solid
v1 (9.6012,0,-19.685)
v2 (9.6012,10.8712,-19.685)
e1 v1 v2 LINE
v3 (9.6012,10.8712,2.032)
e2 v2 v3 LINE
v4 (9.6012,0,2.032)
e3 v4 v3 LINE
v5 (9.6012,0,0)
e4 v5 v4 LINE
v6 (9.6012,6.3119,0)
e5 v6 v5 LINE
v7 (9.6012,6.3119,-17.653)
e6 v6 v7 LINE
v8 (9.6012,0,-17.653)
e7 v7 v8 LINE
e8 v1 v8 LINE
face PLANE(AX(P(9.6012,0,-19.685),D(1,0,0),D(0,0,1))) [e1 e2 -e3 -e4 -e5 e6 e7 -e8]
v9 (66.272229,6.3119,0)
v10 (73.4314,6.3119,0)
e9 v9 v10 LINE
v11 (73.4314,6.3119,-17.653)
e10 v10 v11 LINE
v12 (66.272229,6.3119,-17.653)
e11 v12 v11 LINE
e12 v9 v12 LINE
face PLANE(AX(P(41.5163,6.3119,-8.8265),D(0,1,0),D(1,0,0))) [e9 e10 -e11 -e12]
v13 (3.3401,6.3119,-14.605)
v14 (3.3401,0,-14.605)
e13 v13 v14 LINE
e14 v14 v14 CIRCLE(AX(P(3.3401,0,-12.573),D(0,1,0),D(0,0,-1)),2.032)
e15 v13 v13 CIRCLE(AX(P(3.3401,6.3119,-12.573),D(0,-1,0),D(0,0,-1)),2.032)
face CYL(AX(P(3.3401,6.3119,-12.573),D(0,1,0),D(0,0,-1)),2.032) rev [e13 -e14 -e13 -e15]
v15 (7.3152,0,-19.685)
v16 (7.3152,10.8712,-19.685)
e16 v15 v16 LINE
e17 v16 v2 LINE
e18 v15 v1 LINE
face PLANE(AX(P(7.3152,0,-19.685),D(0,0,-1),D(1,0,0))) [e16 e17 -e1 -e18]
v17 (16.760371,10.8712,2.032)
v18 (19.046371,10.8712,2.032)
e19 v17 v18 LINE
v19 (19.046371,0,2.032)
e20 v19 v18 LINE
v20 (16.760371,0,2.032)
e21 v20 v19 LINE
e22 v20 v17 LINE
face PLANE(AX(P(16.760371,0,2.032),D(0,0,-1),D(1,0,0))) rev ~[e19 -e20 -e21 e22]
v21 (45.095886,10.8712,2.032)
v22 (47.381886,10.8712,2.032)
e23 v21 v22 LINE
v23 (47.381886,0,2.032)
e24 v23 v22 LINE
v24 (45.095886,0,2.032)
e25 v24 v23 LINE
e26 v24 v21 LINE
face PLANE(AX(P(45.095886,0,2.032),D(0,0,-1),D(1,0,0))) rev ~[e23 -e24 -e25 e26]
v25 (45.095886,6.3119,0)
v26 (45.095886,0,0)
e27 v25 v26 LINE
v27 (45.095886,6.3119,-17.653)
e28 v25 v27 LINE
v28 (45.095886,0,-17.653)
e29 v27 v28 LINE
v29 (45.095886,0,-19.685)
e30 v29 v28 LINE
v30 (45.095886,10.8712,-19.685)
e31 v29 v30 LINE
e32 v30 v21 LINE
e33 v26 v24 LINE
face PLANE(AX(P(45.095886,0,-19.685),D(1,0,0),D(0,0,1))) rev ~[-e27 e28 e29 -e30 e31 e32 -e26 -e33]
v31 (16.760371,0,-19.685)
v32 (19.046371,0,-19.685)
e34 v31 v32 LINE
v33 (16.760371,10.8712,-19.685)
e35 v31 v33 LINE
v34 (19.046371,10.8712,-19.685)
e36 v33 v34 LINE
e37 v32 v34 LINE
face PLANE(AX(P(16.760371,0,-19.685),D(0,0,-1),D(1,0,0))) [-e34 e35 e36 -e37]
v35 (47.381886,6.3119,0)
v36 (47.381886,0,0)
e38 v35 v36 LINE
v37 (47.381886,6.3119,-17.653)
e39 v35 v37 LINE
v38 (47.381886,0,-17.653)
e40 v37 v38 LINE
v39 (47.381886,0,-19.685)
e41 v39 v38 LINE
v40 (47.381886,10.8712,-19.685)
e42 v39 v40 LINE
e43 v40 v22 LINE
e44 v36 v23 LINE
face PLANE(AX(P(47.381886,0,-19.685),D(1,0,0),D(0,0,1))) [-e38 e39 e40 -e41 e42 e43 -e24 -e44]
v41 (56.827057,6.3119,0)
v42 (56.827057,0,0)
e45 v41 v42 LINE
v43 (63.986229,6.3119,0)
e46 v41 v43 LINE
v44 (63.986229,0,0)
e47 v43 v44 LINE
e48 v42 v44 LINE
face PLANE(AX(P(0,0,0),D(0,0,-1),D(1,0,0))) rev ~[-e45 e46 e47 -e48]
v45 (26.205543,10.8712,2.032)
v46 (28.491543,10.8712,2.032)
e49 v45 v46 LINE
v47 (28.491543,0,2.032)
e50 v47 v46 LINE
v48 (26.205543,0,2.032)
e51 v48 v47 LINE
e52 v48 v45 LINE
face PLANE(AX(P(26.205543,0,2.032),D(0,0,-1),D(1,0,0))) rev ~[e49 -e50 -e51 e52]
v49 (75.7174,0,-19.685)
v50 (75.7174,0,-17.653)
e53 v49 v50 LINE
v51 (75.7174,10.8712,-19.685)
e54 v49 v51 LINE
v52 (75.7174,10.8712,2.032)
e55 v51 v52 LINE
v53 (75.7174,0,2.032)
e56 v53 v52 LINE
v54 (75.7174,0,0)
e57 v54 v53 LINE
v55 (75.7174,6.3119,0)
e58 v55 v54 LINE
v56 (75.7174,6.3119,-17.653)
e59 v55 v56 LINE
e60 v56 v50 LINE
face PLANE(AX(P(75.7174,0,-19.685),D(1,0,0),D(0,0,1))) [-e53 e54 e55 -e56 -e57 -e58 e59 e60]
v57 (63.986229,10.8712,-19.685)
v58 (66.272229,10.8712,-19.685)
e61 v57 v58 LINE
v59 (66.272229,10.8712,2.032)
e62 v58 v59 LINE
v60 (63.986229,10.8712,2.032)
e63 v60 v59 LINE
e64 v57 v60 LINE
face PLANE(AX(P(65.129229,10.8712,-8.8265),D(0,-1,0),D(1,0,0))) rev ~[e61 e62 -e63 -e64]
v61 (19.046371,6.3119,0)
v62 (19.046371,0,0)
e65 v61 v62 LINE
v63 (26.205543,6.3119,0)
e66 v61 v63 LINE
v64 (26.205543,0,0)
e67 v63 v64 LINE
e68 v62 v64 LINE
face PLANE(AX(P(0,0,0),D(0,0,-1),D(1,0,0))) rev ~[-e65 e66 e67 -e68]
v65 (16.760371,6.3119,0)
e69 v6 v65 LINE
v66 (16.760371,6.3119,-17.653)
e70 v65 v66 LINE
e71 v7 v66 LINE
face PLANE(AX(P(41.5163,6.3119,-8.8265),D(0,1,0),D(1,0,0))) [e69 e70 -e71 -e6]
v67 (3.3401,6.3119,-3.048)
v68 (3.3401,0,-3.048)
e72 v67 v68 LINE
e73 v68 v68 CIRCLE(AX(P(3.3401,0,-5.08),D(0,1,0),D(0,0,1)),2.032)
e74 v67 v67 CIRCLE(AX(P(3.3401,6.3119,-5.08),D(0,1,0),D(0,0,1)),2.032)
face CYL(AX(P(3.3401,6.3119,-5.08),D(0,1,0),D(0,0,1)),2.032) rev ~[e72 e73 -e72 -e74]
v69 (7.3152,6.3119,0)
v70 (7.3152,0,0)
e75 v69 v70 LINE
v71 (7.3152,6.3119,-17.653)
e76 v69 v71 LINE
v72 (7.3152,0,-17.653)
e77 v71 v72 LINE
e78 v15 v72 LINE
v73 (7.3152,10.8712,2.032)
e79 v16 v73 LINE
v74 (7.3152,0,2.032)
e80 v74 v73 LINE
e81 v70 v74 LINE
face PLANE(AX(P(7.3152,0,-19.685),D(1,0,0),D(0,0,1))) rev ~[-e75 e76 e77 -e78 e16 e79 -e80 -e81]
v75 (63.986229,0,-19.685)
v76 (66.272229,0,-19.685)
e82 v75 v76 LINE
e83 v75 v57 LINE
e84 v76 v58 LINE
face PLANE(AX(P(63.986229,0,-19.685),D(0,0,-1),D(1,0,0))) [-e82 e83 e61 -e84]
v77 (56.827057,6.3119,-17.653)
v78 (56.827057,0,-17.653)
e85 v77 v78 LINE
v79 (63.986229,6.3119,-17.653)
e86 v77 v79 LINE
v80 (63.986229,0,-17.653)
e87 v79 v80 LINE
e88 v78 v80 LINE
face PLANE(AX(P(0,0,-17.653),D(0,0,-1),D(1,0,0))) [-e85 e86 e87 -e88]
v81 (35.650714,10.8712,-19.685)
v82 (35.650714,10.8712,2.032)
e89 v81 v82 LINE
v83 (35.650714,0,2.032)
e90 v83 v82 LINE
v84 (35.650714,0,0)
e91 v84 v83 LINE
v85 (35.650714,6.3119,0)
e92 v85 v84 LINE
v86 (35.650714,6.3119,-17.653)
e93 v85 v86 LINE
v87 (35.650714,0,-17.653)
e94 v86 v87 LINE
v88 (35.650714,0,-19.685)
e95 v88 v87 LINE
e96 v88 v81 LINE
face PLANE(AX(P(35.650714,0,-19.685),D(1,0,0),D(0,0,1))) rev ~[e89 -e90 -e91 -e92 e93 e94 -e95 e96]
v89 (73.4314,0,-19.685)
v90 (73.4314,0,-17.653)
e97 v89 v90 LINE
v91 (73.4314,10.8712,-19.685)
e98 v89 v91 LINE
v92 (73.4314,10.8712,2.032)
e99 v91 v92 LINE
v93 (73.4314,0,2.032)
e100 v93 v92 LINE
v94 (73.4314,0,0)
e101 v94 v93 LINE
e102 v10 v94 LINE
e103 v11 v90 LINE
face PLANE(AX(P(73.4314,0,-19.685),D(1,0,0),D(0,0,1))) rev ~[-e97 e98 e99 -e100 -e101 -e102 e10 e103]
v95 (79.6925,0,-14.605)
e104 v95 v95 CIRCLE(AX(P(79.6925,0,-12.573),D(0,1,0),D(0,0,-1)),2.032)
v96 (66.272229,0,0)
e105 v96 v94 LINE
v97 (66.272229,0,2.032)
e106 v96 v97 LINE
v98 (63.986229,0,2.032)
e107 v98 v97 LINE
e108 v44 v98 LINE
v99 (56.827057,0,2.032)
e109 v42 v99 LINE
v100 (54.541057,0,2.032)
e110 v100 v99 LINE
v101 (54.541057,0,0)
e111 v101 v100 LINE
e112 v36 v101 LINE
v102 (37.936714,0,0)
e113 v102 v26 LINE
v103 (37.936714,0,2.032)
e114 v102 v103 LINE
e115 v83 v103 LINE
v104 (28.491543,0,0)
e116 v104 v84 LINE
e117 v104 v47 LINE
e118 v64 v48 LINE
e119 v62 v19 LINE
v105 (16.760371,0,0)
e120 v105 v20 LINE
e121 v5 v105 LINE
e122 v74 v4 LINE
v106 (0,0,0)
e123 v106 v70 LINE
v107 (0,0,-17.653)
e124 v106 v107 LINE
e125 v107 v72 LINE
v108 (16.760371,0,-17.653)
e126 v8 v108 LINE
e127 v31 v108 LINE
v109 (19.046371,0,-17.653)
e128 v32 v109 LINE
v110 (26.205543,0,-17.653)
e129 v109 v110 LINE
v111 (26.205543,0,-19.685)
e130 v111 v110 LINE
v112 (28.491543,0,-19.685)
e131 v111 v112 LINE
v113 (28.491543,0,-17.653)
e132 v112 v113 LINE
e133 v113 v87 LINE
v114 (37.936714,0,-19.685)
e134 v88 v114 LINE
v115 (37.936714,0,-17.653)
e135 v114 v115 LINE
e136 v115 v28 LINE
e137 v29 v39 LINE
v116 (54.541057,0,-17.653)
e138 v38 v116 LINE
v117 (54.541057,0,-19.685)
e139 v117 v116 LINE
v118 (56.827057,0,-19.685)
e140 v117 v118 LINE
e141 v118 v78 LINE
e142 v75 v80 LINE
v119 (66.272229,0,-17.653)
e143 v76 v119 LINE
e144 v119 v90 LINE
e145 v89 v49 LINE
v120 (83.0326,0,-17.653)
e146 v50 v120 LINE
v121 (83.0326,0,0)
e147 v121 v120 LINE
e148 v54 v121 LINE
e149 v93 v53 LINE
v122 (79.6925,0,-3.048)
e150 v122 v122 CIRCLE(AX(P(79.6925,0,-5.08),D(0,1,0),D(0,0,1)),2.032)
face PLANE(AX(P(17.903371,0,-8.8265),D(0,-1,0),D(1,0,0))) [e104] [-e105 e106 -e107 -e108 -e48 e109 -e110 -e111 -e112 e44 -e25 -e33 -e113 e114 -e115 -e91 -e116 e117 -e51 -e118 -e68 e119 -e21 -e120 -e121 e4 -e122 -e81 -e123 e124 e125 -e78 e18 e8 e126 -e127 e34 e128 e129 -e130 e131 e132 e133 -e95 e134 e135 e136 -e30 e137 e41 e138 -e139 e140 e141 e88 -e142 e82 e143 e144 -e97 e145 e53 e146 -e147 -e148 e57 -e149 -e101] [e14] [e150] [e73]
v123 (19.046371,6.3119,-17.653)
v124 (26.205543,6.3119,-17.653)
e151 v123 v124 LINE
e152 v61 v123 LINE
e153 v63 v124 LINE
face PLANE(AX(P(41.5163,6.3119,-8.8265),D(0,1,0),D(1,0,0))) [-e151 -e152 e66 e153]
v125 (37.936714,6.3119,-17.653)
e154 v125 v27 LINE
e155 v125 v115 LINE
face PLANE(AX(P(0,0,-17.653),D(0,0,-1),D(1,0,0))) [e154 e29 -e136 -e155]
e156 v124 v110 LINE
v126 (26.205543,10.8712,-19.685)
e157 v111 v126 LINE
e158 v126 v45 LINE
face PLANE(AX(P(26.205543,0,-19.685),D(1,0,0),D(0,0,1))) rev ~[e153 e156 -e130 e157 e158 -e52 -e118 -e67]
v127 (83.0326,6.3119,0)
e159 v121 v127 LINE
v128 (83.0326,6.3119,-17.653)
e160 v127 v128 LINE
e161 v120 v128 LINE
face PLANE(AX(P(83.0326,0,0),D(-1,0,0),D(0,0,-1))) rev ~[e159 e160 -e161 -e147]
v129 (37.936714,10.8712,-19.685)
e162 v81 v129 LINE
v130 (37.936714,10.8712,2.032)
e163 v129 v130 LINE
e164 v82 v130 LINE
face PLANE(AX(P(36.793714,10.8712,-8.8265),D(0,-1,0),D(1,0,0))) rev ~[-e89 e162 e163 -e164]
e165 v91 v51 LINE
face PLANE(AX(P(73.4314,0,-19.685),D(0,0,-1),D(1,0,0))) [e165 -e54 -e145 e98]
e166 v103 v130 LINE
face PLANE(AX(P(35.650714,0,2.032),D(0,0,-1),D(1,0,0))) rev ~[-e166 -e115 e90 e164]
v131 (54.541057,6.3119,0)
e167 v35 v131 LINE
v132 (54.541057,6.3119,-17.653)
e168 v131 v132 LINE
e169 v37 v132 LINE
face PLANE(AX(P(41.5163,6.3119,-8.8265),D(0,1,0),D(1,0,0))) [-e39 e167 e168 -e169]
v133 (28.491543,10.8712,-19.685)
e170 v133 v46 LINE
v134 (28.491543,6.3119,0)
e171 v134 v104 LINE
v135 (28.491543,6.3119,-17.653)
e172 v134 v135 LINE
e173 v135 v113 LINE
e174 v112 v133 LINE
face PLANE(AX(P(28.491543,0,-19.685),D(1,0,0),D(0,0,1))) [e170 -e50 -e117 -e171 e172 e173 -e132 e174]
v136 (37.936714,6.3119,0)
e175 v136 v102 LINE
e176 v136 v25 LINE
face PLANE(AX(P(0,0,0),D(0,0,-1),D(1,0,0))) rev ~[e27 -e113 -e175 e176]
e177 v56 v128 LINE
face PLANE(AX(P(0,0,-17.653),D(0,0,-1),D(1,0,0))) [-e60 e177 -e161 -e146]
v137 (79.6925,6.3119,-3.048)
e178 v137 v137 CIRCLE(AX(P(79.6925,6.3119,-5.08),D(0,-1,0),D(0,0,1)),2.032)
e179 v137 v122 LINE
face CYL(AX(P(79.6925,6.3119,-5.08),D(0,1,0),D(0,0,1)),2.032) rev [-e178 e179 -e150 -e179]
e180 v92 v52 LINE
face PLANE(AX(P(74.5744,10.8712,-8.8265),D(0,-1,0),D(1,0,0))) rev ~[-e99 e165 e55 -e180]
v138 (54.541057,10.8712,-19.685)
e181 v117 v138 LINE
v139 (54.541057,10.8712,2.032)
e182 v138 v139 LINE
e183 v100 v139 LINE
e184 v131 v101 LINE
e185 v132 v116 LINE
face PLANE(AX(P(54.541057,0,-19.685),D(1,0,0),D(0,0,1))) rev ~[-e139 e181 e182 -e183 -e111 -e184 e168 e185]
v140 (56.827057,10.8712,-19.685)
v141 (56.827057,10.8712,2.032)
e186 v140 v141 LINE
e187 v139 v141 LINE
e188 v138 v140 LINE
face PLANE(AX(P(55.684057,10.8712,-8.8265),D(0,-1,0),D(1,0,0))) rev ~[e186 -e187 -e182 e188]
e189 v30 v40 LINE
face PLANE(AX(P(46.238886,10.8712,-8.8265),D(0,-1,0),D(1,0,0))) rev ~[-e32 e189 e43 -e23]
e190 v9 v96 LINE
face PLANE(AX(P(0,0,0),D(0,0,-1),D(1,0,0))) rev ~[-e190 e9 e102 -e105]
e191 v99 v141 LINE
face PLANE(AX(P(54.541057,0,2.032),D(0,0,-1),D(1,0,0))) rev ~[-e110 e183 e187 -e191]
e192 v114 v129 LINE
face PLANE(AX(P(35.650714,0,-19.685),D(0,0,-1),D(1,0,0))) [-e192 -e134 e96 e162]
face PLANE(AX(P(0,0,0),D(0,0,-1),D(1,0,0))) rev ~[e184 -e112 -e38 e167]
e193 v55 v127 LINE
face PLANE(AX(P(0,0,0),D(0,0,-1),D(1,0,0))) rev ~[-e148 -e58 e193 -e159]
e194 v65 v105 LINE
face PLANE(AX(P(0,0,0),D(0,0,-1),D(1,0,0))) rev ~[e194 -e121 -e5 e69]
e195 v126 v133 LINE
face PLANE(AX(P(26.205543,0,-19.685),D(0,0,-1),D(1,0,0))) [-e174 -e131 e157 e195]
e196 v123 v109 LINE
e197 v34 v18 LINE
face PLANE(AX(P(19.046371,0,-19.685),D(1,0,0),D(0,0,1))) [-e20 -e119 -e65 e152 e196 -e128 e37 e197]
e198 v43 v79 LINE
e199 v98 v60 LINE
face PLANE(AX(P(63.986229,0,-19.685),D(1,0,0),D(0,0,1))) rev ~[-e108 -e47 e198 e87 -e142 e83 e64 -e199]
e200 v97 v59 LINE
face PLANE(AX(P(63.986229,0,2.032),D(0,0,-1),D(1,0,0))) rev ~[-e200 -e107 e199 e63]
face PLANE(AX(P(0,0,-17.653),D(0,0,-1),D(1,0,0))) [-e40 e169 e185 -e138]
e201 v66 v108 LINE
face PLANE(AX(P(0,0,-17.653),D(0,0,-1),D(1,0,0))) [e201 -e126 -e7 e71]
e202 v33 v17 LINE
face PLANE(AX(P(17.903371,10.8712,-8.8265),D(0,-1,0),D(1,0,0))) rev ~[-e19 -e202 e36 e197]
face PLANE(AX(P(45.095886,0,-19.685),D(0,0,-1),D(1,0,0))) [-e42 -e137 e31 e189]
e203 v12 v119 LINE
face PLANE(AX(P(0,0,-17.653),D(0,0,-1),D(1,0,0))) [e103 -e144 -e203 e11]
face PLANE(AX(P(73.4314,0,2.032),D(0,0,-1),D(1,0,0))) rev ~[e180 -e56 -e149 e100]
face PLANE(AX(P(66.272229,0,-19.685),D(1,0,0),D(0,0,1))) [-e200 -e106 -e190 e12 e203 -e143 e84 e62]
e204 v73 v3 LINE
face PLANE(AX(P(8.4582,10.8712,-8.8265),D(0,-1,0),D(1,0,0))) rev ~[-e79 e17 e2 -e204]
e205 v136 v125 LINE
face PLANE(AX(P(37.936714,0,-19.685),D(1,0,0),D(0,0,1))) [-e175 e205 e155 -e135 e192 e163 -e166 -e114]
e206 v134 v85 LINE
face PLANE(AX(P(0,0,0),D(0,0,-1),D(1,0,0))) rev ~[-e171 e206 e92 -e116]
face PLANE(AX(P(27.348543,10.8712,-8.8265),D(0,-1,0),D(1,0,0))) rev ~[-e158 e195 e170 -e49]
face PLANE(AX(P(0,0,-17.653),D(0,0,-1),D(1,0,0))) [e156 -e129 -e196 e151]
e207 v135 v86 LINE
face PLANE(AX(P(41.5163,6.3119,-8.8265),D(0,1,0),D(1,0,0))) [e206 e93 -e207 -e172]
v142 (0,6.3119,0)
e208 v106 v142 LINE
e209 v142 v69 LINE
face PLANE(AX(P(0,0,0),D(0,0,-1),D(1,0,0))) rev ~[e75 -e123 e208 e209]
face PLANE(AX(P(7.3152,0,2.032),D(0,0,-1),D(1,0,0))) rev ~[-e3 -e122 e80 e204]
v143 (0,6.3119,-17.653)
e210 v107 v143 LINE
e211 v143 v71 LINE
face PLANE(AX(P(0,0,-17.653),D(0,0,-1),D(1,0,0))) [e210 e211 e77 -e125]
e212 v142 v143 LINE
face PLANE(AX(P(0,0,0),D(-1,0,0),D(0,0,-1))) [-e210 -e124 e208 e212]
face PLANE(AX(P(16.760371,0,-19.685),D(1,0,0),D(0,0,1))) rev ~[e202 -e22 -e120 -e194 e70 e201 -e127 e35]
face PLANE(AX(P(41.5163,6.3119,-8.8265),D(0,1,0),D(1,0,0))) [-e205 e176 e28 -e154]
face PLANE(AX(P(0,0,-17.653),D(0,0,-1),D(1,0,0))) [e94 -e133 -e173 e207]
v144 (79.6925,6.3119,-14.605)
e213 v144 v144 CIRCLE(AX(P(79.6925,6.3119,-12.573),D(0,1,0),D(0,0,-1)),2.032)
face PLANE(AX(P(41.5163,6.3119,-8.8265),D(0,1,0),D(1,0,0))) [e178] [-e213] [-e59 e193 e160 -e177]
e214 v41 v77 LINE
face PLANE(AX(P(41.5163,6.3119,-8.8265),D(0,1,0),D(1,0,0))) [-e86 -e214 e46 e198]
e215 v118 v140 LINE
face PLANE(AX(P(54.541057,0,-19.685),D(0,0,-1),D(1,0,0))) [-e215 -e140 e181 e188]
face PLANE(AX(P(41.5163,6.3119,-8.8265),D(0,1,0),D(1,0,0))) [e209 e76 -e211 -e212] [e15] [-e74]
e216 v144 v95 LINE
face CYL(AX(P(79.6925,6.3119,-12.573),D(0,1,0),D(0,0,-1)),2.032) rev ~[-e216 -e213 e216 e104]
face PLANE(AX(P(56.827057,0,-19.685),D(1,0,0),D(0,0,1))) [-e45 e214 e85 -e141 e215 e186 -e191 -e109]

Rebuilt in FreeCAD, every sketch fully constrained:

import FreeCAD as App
import Part
import Sketcher
Q = App.Units.Quantity


def add_polygon(sketch, points):
    """Adds a closed chain of lines whose ends are joined by coincident constraints."""
    first, n = sketch.GeometryCount, len(points)
    for a, b in zip(points, points[1:] + points[:1]):
        sketch.addGeometry(Part.LineSegment(App.Vector(*a, 0), App.Vector(*b, 0)), False)
    for i in range(n):
        sketch.addConstraint(Sketcher.Constraint("Coincident", first + i, 2, first + (i + 1) % n, 1))

doc = App.newDocument("Part")
body = doc.addObject("PartDesign::Body", "Body")

sketch1 = doc.addObject("Sketcher::SketchObject", "Sketch")
body.addObject(sketch1)
sketch1.AttachmentSupport = (doc.XZ_Plane, [""])
sketch1.MapMode = "FlatFace"
add_polygon(sketch1, [(0, -17.653), (0, 0), (83.0326, 0), (83.0326, -17.653)])
sketch1.addConstraint(Sketcher.Constraint("Vertical", 0))
sketch1.addConstraint(Sketcher.Constraint("Horizontal", 1))
sketch1.addConstraint(Sketcher.Constraint("Vertical", 2))
sketch1.addConstraint(Sketcher.Constraint("Horizontal", 3))
sketch1.addConstraint(Sketcher.Constraint("Coincident", 0, 2, -1, 1))
sketch1.addConstraint(Sketcher.Constraint("DistanceX", 1, 1, 1, 2, Q("3.269 in")))
sketch1.addConstraint(Sketcher.Constraint("DistanceY", 0, 1, 0, 2, Q("0.695 in")))
pad1 = doc.addObject("PartDesign::Pad", "Pad")
body.addObject(pad1)
pad1.Profile = sketch1
pad1.Length = Q("0.2485 in")
pad1.Reversed = True

sketch2 = doc.addObject("Sketcher::SketchObject", "Sketch001")
body.addObject(sketch2)
sketch2.AttachmentSupport = (doc.XZ_Plane, [""])
sketch2.MapMode = "FlatFace"
add_polygon(sketch2, [(7.3152, 2.032), (7.3152, -19.685), (9.6012, -19.685), (9.6012, 2.032)])
sketch2.addConstraint(Sketcher.Constraint("Vertical", 0))
sketch2.addConstraint(Sketcher.Constraint("Horizontal", 1))
sketch2.addConstraint(Sketcher.Constraint("Vertical", 2))
sketch2.addConstraint(Sketcher.Constraint("Horizontal", 3))
sketch2.addConstraint(Sketcher.Constraint("DistanceX", 1, 1, 1, 2, Q("0.09 in")))
sketch2.addConstraint(Sketcher.Constraint("DistanceY", 0, 2, 0, 1, Q("0.855 in")))
sketch2.addConstraint(Sketcher.Constraint("DistanceY", -1, 1, 2, 2, Q("0.08 in")))
sketch2.addConstraint(Sketcher.Constraint("DistanceX", -1, 1, 0, 2, Q("0.288 in")))
pad2 = doc.addObject("PartDesign::Pad", "Pad001")
body.addObject(pad2)
pad2.Profile = sketch2
pad2.Length = Q("0.428 in")
pad2.Reversed = True
doc.recompute()

linearpattern = doc.addObject("PartDesign::LinearPattern", "LinearPattern")
body.addObject(linearpattern)
linearpattern.Originals = [pad2]
linearpattern.Direction = (doc.X_Axis, [""])
linearpattern.Mode = "offset"
linearpattern.Offset = 9.445171
linearpattern.Occurrences = 8
body.Tip = linearpattern

sketch3 = doc.addObject("Sketcher::SketchObject", "Sketch002")
body.addObject(sketch3)
sketch3.AttachmentSupport = (doc.XZ_Plane, [""])
sketch3.MapMode = "FlatFace"
sketch3.AttachmentOffset = App.Placement(App.Vector(0, 0, -0.2485 * 25.4), App.Rotation())
sketch3.addGeometry(Part.Circle(App.Vector(3.3401, -5.08, 0), App.Vector(0, 0, 1), 2.032), False)
sketch3.addConstraint(Sketcher.Constraint("Diameter", 0, Q("0.16 in")))
sketch3.addConstraint(Sketcher.Constraint("DistanceY", 0, 3, -1, 1, Q("0.2 in")))
sketch3.addConstraint(Sketcher.Constraint("DistanceX", -1, 1, 0, 3, Q("0.1315 in")))
pocket1 = doc.addObject("PartDesign::Pocket", "Pocket")
body.addObject(pocket1)
pocket1.Profile = sketch3
pocket1.Type = "ThroughAll"
pocket1.Reversed = True
doc.recompute()

datumplane = doc.addObject("PartDesign::Plane", "DatumPlane")
body.addObject(datumplane)
datumplane.AttachmentSupport = (doc.XY_Plane, [""])
datumplane.MapMode = "FlatFace"
datumplane.AttachmentOffset = App.Placement(App.Vector(0, 0, -0.3475 * 25.4), App.Rotation())
mirrored = doc.addObject("PartDesign::Mirrored", "Mirrored")
body.addObject(mirrored)
mirrored.Originals = [pocket1]
mirrored.MirrorPlane = (datumplane, [""])
body.Tip = mirrored
doc.recompute()

datumplane2 = doc.addObject("PartDesign::Plane", "DatumPlane001")
body.addObject(datumplane2)
datumplane2.AttachmentSupport = (doc.YZ_Plane, [""])
datumplane2.MapMode = "FlatFace"
datumplane2.AttachmentOffset = App.Placement(App.Vector(0, 0, 1.6345 * 25.4), App.Rotation())
mirrored2 = doc.addObject("PartDesign::Mirrored", "Mirrored001")
body.addObject(mirrored2)
mirrored2.Originals = [pocket1]
mirrored2.MirrorPlane = (datumplane2, [""])
body.Tip = mirrored2

sketch4 = doc.addObject("Sketcher::SketchObject", "Sketch003")
body.addObject(sketch4)
sketch4.AttachmentSupport = (doc.XZ_Plane, [""])
sketch4.MapMode = "FlatFace"
sketch4.AttachmentOffset = App.Placement(App.Vector(0, 0, -0.2485 * 25.4), App.Rotation())
sketch4.addGeometry(Part.Circle(App.Vector(79.6925, -12.573, 0), App.Vector(0, 0, 1), 2.032), False)
sketch4.addConstraint(Sketcher.Constraint("Diameter", 0, Q("0.16 in")))
sketch4.addConstraint(Sketcher.Constraint("DistanceY", 0, 3, -1, 1, Q("0.495 in")))
sketch4.addConstraint(Sketcher.Constraint("DistanceX", -1, 1, 0, 3, Q("3.1375 in")))
pocket2 = doc.addObject("PartDesign::Pocket", "Pocket001")
body.addObject(pocket2)
pocket2.Profile = sketch4
pocket2.Type = "ThroughAll"
pocket2.Reversed = True

doc.recompute()
